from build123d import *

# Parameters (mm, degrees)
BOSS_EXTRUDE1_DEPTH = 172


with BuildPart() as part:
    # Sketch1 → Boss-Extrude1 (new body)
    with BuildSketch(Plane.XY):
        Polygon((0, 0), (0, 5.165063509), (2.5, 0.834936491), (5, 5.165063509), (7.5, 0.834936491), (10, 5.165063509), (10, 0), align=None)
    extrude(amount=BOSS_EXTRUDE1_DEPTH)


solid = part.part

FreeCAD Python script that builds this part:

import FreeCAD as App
import Part
import Sketcher
from FreeCAD import Vector
Q = App.Units.Quantity


def add_polygon(sketch, points):
    """Adds a closed chain of lines whose ends are joined by coincident constraints."""
    first, n = sketch.GeometryCount, len(points)
    for a, b in zip(points, points[1:] + points[:1]):
        sketch.addGeometry(Part.LineSegment(App.Vector(*a, 0), App.Vector(*b, 0)), False)
    for i in range(n):
        sketch.addConstraint(Sketcher.Constraint("Coincident", first + i, 2, first + (i + 1) % n, 1))

doc = App.newDocument("Part")
body = doc.addObject("PartDesign::Body", "Body")

sketch1 = doc.addObject("Sketcher::SketchObject", "Sketch")
body.addObject(sketch1)
sketch1.AttachmentSupport = (doc.XY_Plane, [""])
sketch1.MapMode = "FlatFace"
add_polygon(sketch1, [(0, 5.2), (0, 0), (10, 0), (10, 5.2), (7.5, 0.8), (5, 5.2), (2.5, 0.8)])
sketch1.addConstraint([
    Sketcher.Constraint("Vertical", 0),
    Sketcher.Constraint("Horizontal", 1),
    Sketcher.Constraint("Vertical", 2),
    Sketcher.Constraint("Coincident", 0, 2, -1, 1),
    Sketcher.Constraint("Parallel", 3, 5),
    Sketcher.Constraint("Parallel", 4, 6),
    Sketcher.Constraint("Horizontal", 2, 2, 4, 2),
    Sketcher.Constraint("Horizontal", 3, 2, 5, 2),
    Sketcher.Constraint("Horizontal", 4, 2, 6, 2),
    Sketcher.Constraint("Equal", 3, 4),
    Sketcher.Constraint("DistanceX", 1, 1, 1, 2, 10.0),
    Sketcher.Constraint("Angle", 3, Q("-120 deg")),
    Sketcher.Constraint("DistanceY", 0, 2, 0, 1, 5.165064),
])
pad1 = doc.addObject("PartDesign::Pad", "Pad")
body.addObject(pad1)
pad1.Profile = sketch1
pad1.Length = 172

doc.recompute()
